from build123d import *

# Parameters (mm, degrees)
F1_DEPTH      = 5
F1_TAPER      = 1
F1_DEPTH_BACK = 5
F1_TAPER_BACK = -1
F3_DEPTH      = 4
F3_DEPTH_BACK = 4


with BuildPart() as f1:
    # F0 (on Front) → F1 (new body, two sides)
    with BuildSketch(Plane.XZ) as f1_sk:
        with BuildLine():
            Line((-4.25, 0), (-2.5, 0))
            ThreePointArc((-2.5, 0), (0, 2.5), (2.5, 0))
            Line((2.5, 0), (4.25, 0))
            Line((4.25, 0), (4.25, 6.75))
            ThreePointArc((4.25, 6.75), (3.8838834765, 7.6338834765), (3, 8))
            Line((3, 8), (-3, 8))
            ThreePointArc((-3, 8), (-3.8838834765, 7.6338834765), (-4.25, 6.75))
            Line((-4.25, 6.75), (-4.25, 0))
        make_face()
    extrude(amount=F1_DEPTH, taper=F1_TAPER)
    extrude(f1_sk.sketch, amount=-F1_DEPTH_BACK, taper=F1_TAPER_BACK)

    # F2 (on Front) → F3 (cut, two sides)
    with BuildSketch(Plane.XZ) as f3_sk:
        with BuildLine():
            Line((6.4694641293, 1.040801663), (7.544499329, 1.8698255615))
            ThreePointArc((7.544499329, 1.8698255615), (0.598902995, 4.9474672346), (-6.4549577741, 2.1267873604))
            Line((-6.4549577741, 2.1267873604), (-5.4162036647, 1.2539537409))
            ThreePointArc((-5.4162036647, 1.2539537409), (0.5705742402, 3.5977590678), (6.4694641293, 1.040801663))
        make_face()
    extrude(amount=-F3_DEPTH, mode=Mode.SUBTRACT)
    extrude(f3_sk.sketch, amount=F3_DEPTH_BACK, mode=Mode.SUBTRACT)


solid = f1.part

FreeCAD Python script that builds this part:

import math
import FreeCAD as App
import Part
import Sketcher
Q = App.Units.Quantity

doc = App.newDocument("Part")
body = doc.addObject("PartDesign::Body", "Body")

sketch1 = doc.addObject("Sketcher::SketchObject", "Sketch")
body.addObject(sketch1)
sketch1.AttachmentSupport = (doc.XZ_Plane, [""])
sketch1.MapMode = "FlatFace"
sketch1.addGeometry(Part.LineSegment(App.Vector(-4.2, 0, 0), App.Vector(-2.5, 0, 0)), False)
sketch1.addGeometry(Part.ArcOfCircle(Part.Circle(App.Vector(0, 0, 0), App.Vector(0, 0, 1), 2.5), math.radians(0), math.radians(180)), False)
sketch1.addGeometry(Part.LineSegment(App.Vector(2.5, 0, 0), App.Vector(4.2, 0, 0)), False)
sketch1.addGeometry(Part.LineSegment(App.Vector(4.2, 0, 0), App.Vector(4.2, 6.8, 0)), False)
sketch1.addGeometry(Part.ArcOfCircle(Part.Circle(App.Vector(3, 6.8, 0), App.Vector(0, 0, 1), 1.2), math.radians(0), math.radians(90)), False)
sketch1.addGeometry(Part.LineSegment(App.Vector(3, 8, 0), App.Vector(-3, 8, 0)), False)
sketch1.addGeometry(Part.ArcOfCircle(Part.Circle(App.Vector(-3, 6.8, 0), App.Vector(0, 0, 1), 1.2), math.radians(90), math.radians(180)), False)
sketch1.addGeometry(Part.LineSegment(App.Vector(-4.2, 6.8, 0), App.Vector(-4.2, 0, 0)), False)
sketch1.addConstraint(Sketcher.Constraint("Coincident", 0, 2, 1, 2))
sketch1.addConstraint(Sketcher.Constraint("Coincident", 1, 1, 2, 1))
sketch1.addConstraint(Sketcher.Constraint("Coincident", 2, 2, 3, 1))
sketch1.addConstraint(Sketcher.Constraint("Tangent", 3, 2, 4, 1))
sketch1.addConstraint(Sketcher.Constraint("Tangent", 4, 2, 5, 1))
sketch1.addConstraint(Sketcher.Constraint("Tangent", 5, 2, 6, 1))
sketch1.addConstraint(Sketcher.Constraint("Tangent", 6, 2, 7, 1))
sketch1.addConstraint(Sketcher.Constraint("Coincident", 7, 2, 0, 1))
sketch1.addConstraint(Sketcher.Constraint("Horizontal", 0))
sketch1.addConstraint(Sketcher.Constraint("Horizontal", 2))
sketch1.addConstraint(Sketcher.Constraint("Vertical", 3))
sketch1.addConstraint(Sketcher.Constraint("Horizontal", 5))
sketch1.addConstraint(Sketcher.Constraint("Vertical", 7))
sketch1.addConstraint(Sketcher.Constraint("Coincident", 1, 3, -1, 1))
sketch1.addConstraint(Sketcher.Constraint("Equal", 4, 6))
sketch1.addConstraint(Sketcher.Constraint("Symmetric", 2, 2, 7, 2, -1, 1))
sketch1.addConstraint(Sketcher.Constraint("PointOnObject", 0, 2, -1))
sketch1.addConstraint(Sketcher.Constraint("Radius", 1, Q("2.5 mm")))
sketch1.addConstraint(Sketcher.Constraint("DistanceX", 5, 2, 5, 1, Q("6 mm")))
sketch1.addConstraint(Sketcher.Constraint("Radius", 4, Q("1.25 mm")))
sketch1.addConstraint(Sketcher.Constraint("DistanceY", -1, 1, 4, 2, Q("8 mm")))
pad1 = doc.addObject("PartDesign::Pad", "Pad")
body.addObject(pad1)
pad1.Profile = sketch1
pad1.Length = 5
pad1.TaperAngle = -1
pad2 = doc.addObject("PartDesign::Pad", "Pad001")
body.addObject(pad2)
pad2.Profile = sketch1
pad2.Length = 5
pad2.Reversed = True
pad2.TaperAngle = 1

sketch2 = doc.addObject("Sketcher::SketchObject", "Sketch001")
body.addObject(sketch2)
sketch2.AttachmentSupport = (doc.XZ_Plane, [""])
sketch2.MapMode = "FlatFace"
sketch2.addGeometry(Part.LineSegment(App.Vector(6.5, 1, 0), App.Vector(7.5, 1.9, 0)), False)
sketch2.addGeometry(Part.ArcOfCircle(Part.Circle(App.Vector(0.4, -4.8, 0), App.Vector(0, 0, 1), 9.8), math.radians(43), math.radians(135)), False)
sketch2.addGeometry(Part.LineSegment(App.Vector(-6.5, 2.1, 0), App.Vector(-5.4, 1.3, 0)), False)
sketch2.addGeometry(Part.ArcOfCircle(Part.Circle(App.Vector(0.4, -4.8, 0), App.Vector(0, 0, 1), 8.4), math.radians(44), math.radians(134)), False)
sketch2.addConstraint(Sketcher.Constraint("Coincident", 0, 2, 1, 1))
sketch2.addConstraint(Sketcher.Constraint("Coincident", 1, 2, 2, 1))
sketch2.addConstraint(Sketcher.Constraint("Coincident", 2, 2, 3, 2))
sketch2.addConstraint(Sketcher.Constraint("Coincident", 3, 1, 0, 1))
sketch2.addConstraint(Sketcher.Constraint("Coincident", 3, 3, 1, 3))
sketch2.addConstraint(Sketcher.Constraint("Radius", 1, Q("9.783032 mm")))
sketch2.addConstraint(Sketcher.Constraint("Radius", 3, Q("8.433032 mm")))
sketch2.addConstraint(Sketcher.Constraint("DistanceX", -1, 1, 0, 2, Q("7.544499 mm")))
sketch2.addConstraint(Sketcher.Constraint("DistanceY", -1, 1, 3, 1, Q("1.040802 mm")))
sketch2.addConstraint(Sketcher.Constraint("DistanceX", 1, 3, 3, 1, Q("6.0501 mm")))
sketch2.addConstraint(Sketcher.Constraint("Distance", 2, Q("1.356779 mm")))
sketch2.addConstraint(Sketcher.Constraint("DistanceY", 0, 2, 1, 2, Q("0.256962 mm")))
sketch2.addConstraint(Sketcher.Constraint("DistanceX", 2, 2, 1, 3, Q("5.835568 mm")))
pocket1 = doc.addObject("PartDesign::Pocket", "Pocket")
body.addObject(pocket1)
pocket1.Profile = sketch2
pocket1.Type = "TwoLengths"
pocket1.Length = 4
pocket1.Length2 = 4

doc.recompute()
